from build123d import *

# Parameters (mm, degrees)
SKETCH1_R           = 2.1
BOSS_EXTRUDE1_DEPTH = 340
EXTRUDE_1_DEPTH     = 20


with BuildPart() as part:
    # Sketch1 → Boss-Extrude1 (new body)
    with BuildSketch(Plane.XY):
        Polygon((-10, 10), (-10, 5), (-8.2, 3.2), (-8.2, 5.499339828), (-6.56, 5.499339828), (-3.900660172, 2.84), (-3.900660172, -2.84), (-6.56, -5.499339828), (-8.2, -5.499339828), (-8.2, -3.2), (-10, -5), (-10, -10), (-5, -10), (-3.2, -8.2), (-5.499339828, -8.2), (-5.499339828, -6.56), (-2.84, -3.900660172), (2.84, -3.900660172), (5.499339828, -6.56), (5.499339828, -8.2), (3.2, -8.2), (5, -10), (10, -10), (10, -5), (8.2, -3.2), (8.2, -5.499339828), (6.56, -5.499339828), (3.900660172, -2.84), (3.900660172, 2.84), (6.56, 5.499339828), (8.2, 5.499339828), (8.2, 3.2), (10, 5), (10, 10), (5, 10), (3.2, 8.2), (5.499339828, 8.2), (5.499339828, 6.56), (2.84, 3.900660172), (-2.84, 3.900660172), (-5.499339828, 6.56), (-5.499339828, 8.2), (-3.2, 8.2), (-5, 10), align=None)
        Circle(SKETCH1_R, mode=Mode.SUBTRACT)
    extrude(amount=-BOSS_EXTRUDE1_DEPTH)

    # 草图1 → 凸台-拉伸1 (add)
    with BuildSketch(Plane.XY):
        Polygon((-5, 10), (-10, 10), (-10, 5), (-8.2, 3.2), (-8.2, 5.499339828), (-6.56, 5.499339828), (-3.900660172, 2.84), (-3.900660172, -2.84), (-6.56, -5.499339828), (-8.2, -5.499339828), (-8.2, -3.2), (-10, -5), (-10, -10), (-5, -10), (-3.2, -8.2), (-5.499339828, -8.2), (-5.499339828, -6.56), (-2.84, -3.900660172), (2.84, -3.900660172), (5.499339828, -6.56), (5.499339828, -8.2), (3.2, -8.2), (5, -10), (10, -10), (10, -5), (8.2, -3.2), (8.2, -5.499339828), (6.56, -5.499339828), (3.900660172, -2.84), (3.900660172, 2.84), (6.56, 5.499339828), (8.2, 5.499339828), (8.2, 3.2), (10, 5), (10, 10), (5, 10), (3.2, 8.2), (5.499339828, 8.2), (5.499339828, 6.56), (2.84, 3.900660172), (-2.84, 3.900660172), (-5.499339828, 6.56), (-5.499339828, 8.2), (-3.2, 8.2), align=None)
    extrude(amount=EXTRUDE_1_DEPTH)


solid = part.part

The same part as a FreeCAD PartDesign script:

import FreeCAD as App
import Part
import Sketcher
from FreeCAD import Vector

doc = App.newDocument("Part")
body = doc.addObject("PartDesign::Body", "Body")

# Sketch on XY plane
sketch1 = body.newObject("Sketcher::SketchObject", "Sketch")
sketch1.AttachmentSupport = (doc.getObject("XY_Plane"), [""])
sketch1.MapMode = "FlatFace"
sketch1.addGeometry([
    Part.LineSegment(Vector(-10, 10, 0), Vector(-10, 5, 0)),  # 0
    Part.LineSegment(Vector(-10, 5, 0), Vector(-8.2, 3.2, 0)),  # 1
    Part.LineSegment(Vector(-8.2, 3.2, 0), Vector(-8.2, 5.5, 0)),  # 2
    Part.LineSegment(Vector(-8.2, 5.5, 0), Vector(-6.6, 5.5, 0)),  # 3
    Part.LineSegment(Vector(-6.6, 5.5, 0), Vector(-3.9, 2.8, 0)),  # 4
    Part.LineSegment(Vector(-3.9, 2.8, 0), Vector(-3.9, -2.8, 0)),  # 5
    Part.LineSegment(Vector(-3.9, -2.8, 0), Vector(-6.6, -5.5, 0)),  # 6
    Part.LineSegment(Vector(-6.6, -5.5, 0), Vector(-8.2, -5.5, 0)),  # 7
    Part.LineSegment(Vector(-8.2, -5.5, 0), Vector(-8.2, -3.2, 0)),  # 8
    Part.LineSegment(Vector(-8.2, -3.2, 0), Vector(-10, -5, 0)),  # 9
    Part.LineSegment(Vector(-10, -5, 0), Vector(-10, -10, 0)),  # 10
    Part.LineSegment(Vector(-10, -10, 0), Vector(-5, -10, 0)),  # 11
    Part.LineSegment(Vector(-5, -10, 0), Vector(-3.2, -8.2, 0)),  # 12
    Part.LineSegment(Vector(-3.2, -8.2, 0), Vector(-5.5, -8.2, 0)),  # 13
    Part.LineSegment(Vector(-5.5, -8.2, 0), Vector(-5.5, -6.6, 0)),  # 14
    Part.LineSegment(Vector(-5.5, -6.6, 0), Vector(-2.8, -3.9, 0)),  # 15
    Part.LineSegment(Vector(-2.8, -3.9, 0), Vector(2.8, -3.9, 0)),  # 16
    Part.LineSegment(Vector(2.8, -3.9, 0), Vector(5.5, -6.6, 0)),  # 17
    Part.LineSegment(Vector(5.5, -6.6, 0), Vector(5.5, -8.2, 0)),  # 18
    Part.LineSegment(Vector(5.5, -8.2, 0), Vector(3.2, -8.2, 0)),  # 19
    Part.LineSegment(Vector(3.2, -8.2, 0), Vector(5, -10, 0)),  # 20
    Part.LineSegment(Vector(5, -10, 0), Vector(10, -10, 0)),  # 21
    Part.LineSegment(Vector(10, -10, 0), Vector(10, -5, 0)),  # 22
    Part.LineSegment(Vector(10, -5, 0), Vector(8.2, -3.2, 0)),  # 23
    Part.LineSegment(Vector(8.2, -3.2, 0), Vector(8.2, -5.5, 0)),  # 24
    Part.LineSegment(Vector(8.2, -5.5, 0), Vector(6.6, -5.5, 0)),  # 25
    Part.LineSegment(Vector(6.6, -5.5, 0), Vector(3.9, -2.8, 0)),  # 26
    Part.LineSegment(Vector(3.9, -2.8, 0), Vector(3.9, 2.8, 0)),  # 27
    Part.LineSegment(Vector(3.9, 2.8, 0), Vector(6.6, 5.5, 0)),  # 28
    Part.LineSegment(Vector(6.6, 5.5, 0), Vector(8.2, 5.5, 0)),  # 29
    Part.LineSegment(Vector(8.2, 5.5, 0), Vector(8.2, 3.2, 0)),  # 30
    Part.LineSegment(Vector(8.2, 3.2, 0), Vector(10, 5, 0)),  # 31
    Part.LineSegment(Vector(10, 5, 0), Vector(10, 10, 0)),  # 32
    Part.LineSegment(Vector(10, 10, 0), Vector(5, 10, 0)),  # 33
    Part.LineSegment(Vector(5, 10, 0), Vector(3.2, 8.2, 0)),  # 34
    Part.LineSegment(Vector(3.2, 8.2, 0), Vector(5.5, 8.2, 0)),  # 35
    Part.LineSegment(Vector(5.5, 8.2, 0), Vector(5.5, 6.6, 0)),  # 36
    Part.LineSegment(Vector(5.5, 6.6, 0), Vector(2.8, 3.9, 0)),  # 37
    Part.LineSegment(Vector(2.8, 3.9, 0), Vector(-2.8, 3.9, 0)),  # 38
    Part.LineSegment(Vector(-2.8, 3.9, 0), Vector(-5.5, 6.6, 0)),  # 39
    Part.LineSegment(Vector(-5.5, 6.6, 0), Vector(-5.5, 8.2, 0)),  # 40
    Part.LineSegment(Vector(-5.5, 8.2, 0), Vector(-3.2, 8.2, 0)),  # 41
    Part.LineSegment(Vector(-3.2, 8.2, 0), Vector(-5, 10, 0)),  # 42
    Part.LineSegment(Vector(-5, 10, 0), Vector(-10, 10, 0)),  # 43
    Part.Circle(Vector(0, 0, 0), Vector(0, 0, 1), 2.1),  # 44
], False)
sketch1.addConstraint([
    Sketcher.Constraint("Coincident", 0, 2, 1, 1),
    Sketcher.Constraint("Coincident", 1, 2, 2, 1),
    Sketcher.Constraint("Coincident", 2, 2, 3, 1),
    Sketcher.Constraint("Coincident", 3, 2, 4, 1),
    Sketcher.Constraint("Coincident", 4, 2, 5, 1),
    Sketcher.Constraint("Coincident", 5, 2, 6, 1),
    Sketcher.Constraint("Coincident", 6, 2, 7, 1),
    Sketcher.Constraint("Coincident", 7, 2, 8, 1),
    Sketcher.Constraint("Coincident", 8, 2, 9, 1),
    Sketcher.Constraint("Coincident", 9, 2, 10, 1),
    Sketcher.Constraint("Coincident", 10, 2, 11, 1),
    Sketcher.Constraint("Coincident", 11, 2, 12, 1),
    Sketcher.Constraint("Coincident", 12, 2, 13, 1),
    Sketcher.Constraint("Coincident", 13, 2, 14, 1),
    Sketcher.Constraint("Coincident", 14, 2, 15, 1),
    Sketcher.Constraint("Coincident", 15, 2, 16, 1),
    Sketcher.Constraint("Coincident", 16, 2, 17, 1),
    Sketcher.Constraint("Coincident", 17, 2, 18, 1),
    Sketcher.Constraint("Coincident", 18, 2, 19, 1),
    Sketcher.Constraint("Coincident", 19, 2, 20, 1),
    Sketcher.Constraint("Coincident", 20, 2, 21, 1),
    Sketcher.Constraint("Coincident", 21, 2, 22, 1),
    Sketcher.Constraint("Coincident", 22, 2, 23, 1),
    Sketcher.Constraint("Coincident", 23, 2, 24, 1),
    Sketcher.Constraint("Coincident", 24, 2, 25, 1),
    Sketcher.Constraint("Coincident", 25, 2, 26, 1),
    Sketcher.Constraint("Coincident", 26, 2, 27, 1),
    Sketcher.Constraint("Coincident", 27, 2, 28, 1),
    Sketcher.Constraint("Coincident", 28, 2, 29, 1),
    Sketcher.Constraint("Coincident", 29, 2, 30, 1),
    Sketcher.Constraint("Coincident", 30, 2, 31, 1),
    Sketcher.Constraint("Coincident", 31, 2, 32, 1),
    Sketcher.Constraint("Coincident", 32, 2, 33, 1),
    Sketcher.Constraint("Coincident", 33, 2, 34, 1),
    Sketcher.Constraint("Coincident", 34, 2, 35, 1),
    Sketcher.Constraint("Coincident", 35, 2, 36, 1),
    Sketcher.Constraint("Coincident", 36, 2, 37, 1),
    Sketcher.Constraint("Coincident", 37, 2, 38, 1),
    Sketcher.Constraint("Coincident", 38, 2, 39, 1),
    Sketcher.Constraint("Coincident", 39, 2, 40, 1),
    Sketcher.Constraint("Coincident", 40, 2, 41, 1),
    Sketcher.Constraint("Coincident", 41, 2, 42, 1),
    Sketcher.Constraint("Coincident", 42, 2, 43, 1),
    Sketcher.Constraint("Coincident", 43, 2, 0, 1),
    Sketcher.Constraint("Vertical", 0),
    Sketcher.Constraint("Vertical", 2),
    Sketcher.Constraint("Horizontal", 3),
    Sketcher.Constraint("Vertical", 5),
    Sketcher.Constraint("Horizontal", 7),
    Sketcher.Constraint("Vertical", 8),
    Sketcher.Constraint("Vertical", 10),
    Sketcher.Constraint("Horizontal", 11),
    Sketcher.Constraint("Horizontal", 13),
    Sketcher.Constraint("Vertical", 14),
    Sketcher.Constraint("Horizontal", 16),
    Sketcher.Constraint("Vertical", 18),
    Sketcher.Constraint("Horizontal", 19),
    Sketcher.Constraint("Horizontal", 21),
    Sketcher.Constraint("Vertical", 22),
    Sketcher.Constraint("Vertical", 24),
    Sketcher.Constraint("Horizontal", 25),
    Sketcher.Constraint("Vertical", 27),
    Sketcher.Constraint("Horizontal", 29),
    Sketcher.Constraint("Vertical", 30),
    Sketcher.Constraint("Vertical", 32),
    Sketcher.Constraint("Horizontal", 33),
    Sketcher.Constraint("Horizontal", 35),
    Sketcher.Constraint("Vertical", 36),
    Sketcher.Constraint("Horizontal", 38),
    Sketcher.Constraint("Vertical", 40),
    Sketcher.Constraint("Horizontal", 41),
    Sketcher.Constraint("Horizontal", 43),
    Sketcher.Constraint("Coincident", 44, 3, -1, 1),
    Sketcher.Constraint("Symmetric", 0, 2, 22, 2, -1, 1),
    Sketcher.Constraint("Symmetric", 1, 2, 23, 2, -1, 1),
    Sketcher.Constraint("Symmetric", 3, 2, 25, 2, -1, 1),
    Sketcher.Constraint("Symmetric", 4, 2, 26, 2, -1, 1),
    Sketcher.Constraint("Symmetric", 6, 2, 28, 2, -1, 1),
    Sketcher.Constraint("Symmetric", 8, 2, 30, 2, -1, 1),
    Sketcher.Constraint("Symmetric", 9, 2, 31, 2, -1, 1),
    Sketcher.Constraint("Symmetric", 11, 2, 33, 2, -1, 1),
    Sketcher.Constraint("Symmetric", 12, 2, 34, 2, -1, 1),
    Sketcher.Constraint("Symmetric", 14, 2, 36, 2, -1, 1),
    Sketcher.Constraint("Symmetric", 15, 2, 37, 2, -1, 1),
    Sketcher.Constraint("Symmetric", 17, 2, 39, 2, -1, 1),
    Sketcher.Constraint("Symmetric", 19, 2, 41, 2, -1, 1),
    Sketcher.Constraint("Symmetric", 20, 2, 42, 2, -1, 1),
    Sketcher.Constraint("Symmetric", 14, 2, 17, 2, -2),
    Sketcher.Constraint("Symmetric", 12, 2, 19, 2, -2),
    Sketcher.Constraint("Symmetric", 11, 2, 20, 2, -2),
    Sketcher.Constraint("Symmetric", 9, 2, 22, 2, -2),
    Sketcher.Constraint("Symmetric", 8, 2, 23, 2, -2),
    Sketcher.Constraint("Symmetric", 6, 2, 25, 2, -2),
    Sketcher.Constraint("Parallel", 1, 4),
    Sketcher.Constraint("Perpendicular", 4, 6),
    Sketcher.Constraint("Parallel", 6, 9),
    Sketcher.Constraint("Parallel", 9, 12),
    Sketcher.Constraint("Parallel", 12, 15),
    Sketcher.Constraint("Perpendicular", 15, 17),
    Sketcher.Constraint("Perpendicular", 26, 28),
    Sketcher.Constraint("Perpendicular", 37, 39),
    Sketcher.Constraint("Equal", 43, 0),
    Sketcher.Constraint("Equal", 41, 2),
    Sketcher.Constraint("Equal", 38, 5),
    Sketcher.Constraint("Equal", 29, 14),
    Sketcher.Constraint("Equal", 9, 12),
    Sketcher.Constraint("Equal", 6, 15),
    Sketcher.Constraint("Diameter", 44, 4.2),
    Sketcher.Constraint("DistanceX", 11, 1, 11, 2, 5.0),
    Sketcher.Constraint("DistanceX", 0, 2, -1, 1, 10.0),
    Sketcher.Constraint("DistanceX", 3, 1, 3, 2, 1.64),
    Sketcher.Constraint("DistanceX", 16, 1, 16, 2, 5.68),
    Sketcher.Constraint("DistanceX", 1, 2, -1, 1, 8.2),
    Sketcher.Constraint("DistanceX", 13, 2, 13, 1, 2.29934),
])
pad1 = body.newObject("PartDesign::Pad", "Pad")
pad1.Profile = sketch1
pad1.Length = 340
pad1.Reversed = True

# Sketch on XY plane
sketch2 = body.newObject("Sketcher::SketchObject", "Sketch001")
sketch2.AttachmentSupport = (doc.getObject("XY_Plane"), [""])
sketch2.MapMode = "FlatFace"
sketch2.addGeometry([
    Part.LineSegment(Vector(-5, 10, 0), Vector(-10, 10, 0)),  # 0
    Part.LineSegment(Vector(-10, 10, 0), Vector(-10, 5, 0)),  # 1
    Part.LineSegment(Vector(-10, 5, 0), Vector(-8.2, 3.2, 0)),  # 2
    Part.LineSegment(Vector(-8.2, 3.2, 0), Vector(-8.2, 5.5, 0)),  # 3
    Part.LineSegment(Vector(-8.2, 5.5, 0), Vector(-6.6, 5.5, 0)),  # 4
    Part.LineSegment(Vector(-6.6, 5.5, 0), Vector(-3.9, 2.8, 0)),  # 5
    Part.LineSegment(Vector(-3.9, 2.8, 0), Vector(-3.9, -2.8, 0)),  # 6
    Part.LineSegment(Vector(-3.9, -2.8, 0), Vector(-6.6, -5.5, 0)),  # 7
    Part.LineSegment(Vector(-6.6, -5.5, 0), Vector(-8.2, -5.5, 0)),  # 8
    Part.LineSegment(Vector(-8.2, -5.5, 0), Vector(-8.2, -3.2, 0)),  # 9
    Part.LineSegment(Vector(-8.2, -3.2, 0), Vector(-10, -5, 0)),  # 10
    Part.LineSegment(Vector(-10, -5, 0), Vector(-10, -10, 0)),  # 11
    Part.LineSegment(Vector(-10, -10, 0), Vector(-5, -10, 0)),  # 12
    Part.LineSegment(Vector(-5, -10, 0), Vector(-3.2, -8.2, 0)),  # 13
    Part.LineSegment(Vector(-3.2, -8.2, 0), Vector(-5.5, -8.2, 0)),  # 14
    Part.LineSegment(Vector(-5.5, -8.2, 0), Vector(-5.5, -6.6, 0)),  # 15
    Part.LineSegment(Vector(-5.5, -6.6, 0), Vector(-2.8, -3.9, 0)),  # 16
    Part.LineSegment(Vector(-2.8, -3.9, 0), Vector(2.8, -3.9, 0)),  # 17
    Part.LineSegment(Vector(2.8, -3.9, 0), Vector(5.5, -6.6, 0)),  # 18
    Part.LineSegment(Vector(5.5, -6.6, 0), Vector(5.5, -8.2, 0)),  # 19
    Part.LineSegment(Vector(5.5, -8.2, 0), Vector(3.2, -8.2, 0)),  # 20
    Part.LineSegment(Vector(3.2, -8.2, 0), Vector(5, -10, 0)),  # 21
    Part.LineSegment(Vector(5, -10, 0), Vector(10, -10, 0)),  # 22
    Part.LineSegment(Vector(10, -10, 0), Vector(10, -5, 0)),  # 23
    Part.LineSegment(Vector(10, -5, 0), Vector(8.2, -3.2, 0)),  # 24
    Part.LineSegment(Vector(8.2, -3.2, 0), Vector(8.2, -5.5, 0)),  # 25
    Part.LineSegment(Vector(8.2, -5.5, 0), Vector(6.6, -5.5, 0)),  # 26
    Part.LineSegment(Vector(6.6, -5.5, 0), Vector(3.9, -2.8, 0)),  # 27
    Part.LineSegment(Vector(3.9, -2.8, 0), Vector(3.9, 2.8, 0)),  # 28
    Part.LineSegment(Vector(3.9, 2.8, 0), Vector(6.6, 5.5, 0)),  # 29
    Part.LineSegment(Vector(6.6, 5.5, 0), Vector(8.2, 5.5, 0)),  # 30
    Part.LineSegment(Vector(8.2, 5.5, 0), Vector(8.2, 3.2, 0)),  # 31
    Part.LineSegment(Vector(8.2, 3.2, 0), Vector(10, 5, 0)),  # 32
    Part.LineSegment(Vector(10, 5, 0), Vector(10, 10, 0)),  # 33
    Part.LineSegment(Vector(10, 10, 0), Vector(5, 10, 0)),  # 34
    Part.LineSegment(Vector(5, 10, 0), Vector(3.2, 8.2, 0)),  # 35
    Part.LineSegment(Vector(3.2, 8.2, 0), Vector(5.5, 8.2, 0)),  # 36
    Part.LineSegment(Vector(5.5, 8.2, 0), Vector(5.5, 6.6, 0)),  # 37
    Part.LineSegment(Vector(5.5, 6.6, 0), Vector(2.8, 3.9, 0)),  # 38
    Part.LineSegment(Vector(2.8, 3.9, 0), Vector(-2.8, 3.9, 0)),  # 39
    Part.LineSegment(Vector(-2.8, 3.9, 0), Vector(-5.5, 6.6, 0)),  # 40
    Part.LineSegment(Vector(-5.5, 6.6, 0), Vector(-5.5, 8.2, 0)),  # 41
    Part.LineSegment(Vector(-5.5, 8.2, 0), Vector(-3.2, 8.2, 0)),  # 42
    Part.LineSegment(Vector(-3.2, 8.2, 0), Vector(-5, 10, 0)),  # 43
], False)
sketch2.addConstraint([
    Sketcher.Constraint("Coincident", 0, 2, 1, 1),
    Sketcher.Constraint("Coincident", 1, 2, 2, 1),
    Sketcher.Constraint("Coincident", 2, 2, 3, 1),
    Sketcher.Constraint("Coincident", 3, 2, 4, 1),
    Sketcher.Constraint("Coincident", 4, 2, 5, 1),
    Sketcher.Constraint("Coincident", 5, 2, 6, 1),
    Sketcher.Constraint("Coincident", 6, 2, 7, 1),
    Sketcher.Constraint("Coincident", 7, 2, 8, 1),
    Sketcher.Constraint("Coincident", 8, 2, 9, 1),
    Sketcher.Constraint("Coincident", 9, 2, 10, 1),
    Sketcher.Constraint("Coincident", 10, 2, 11, 1),
    Sketcher.Constraint("Coincident", 11, 2, 12, 1),
    Sketcher.Constraint("Coincident", 12, 2, 13, 1),
    Sketcher.Constraint("Coincident", 13, 2, 14, 1),
    Sketcher.Constraint("Coincident", 14, 2, 15, 1),
    Sketcher.Constraint("Coincident", 15, 2, 16, 1),
    Sketcher.Constraint("Coincident", 16, 2, 17, 1),
    Sketcher.Constraint("Coincident", 17, 2, 18, 1),
    Sketcher.Constraint("Coincident", 18, 2, 19, 1),
    Sketcher.Constraint("Coincident", 19, 2, 20, 1),
    Sketcher.Constraint("Coincident", 20, 2, 21, 1),
    Sketcher.Constraint("Coincident", 21, 2, 22, 1),
    Sketcher.Constraint("Coincident", 22, 2, 23, 1),
    Sketcher.Constraint("Coincident", 23, 2, 24, 1),
    Sketcher.Constraint("Coincident", 24, 2, 25, 1),
    Sketcher.Constraint("Coincident", 25, 2, 26, 1),
    Sketcher.Constraint("Coincident", 26, 2, 27, 1),
    Sketcher.Constraint("Coincident", 27, 2, 28, 1),
    Sketcher.Constraint("Coincident", 28, 2, 29, 1),
    Sketcher.Constraint("Coincident", 29, 2, 30, 1),
    Sketcher.Constraint("Coincident", 30, 2, 31, 1),
    Sketcher.Constraint("Coincident", 31, 2, 32, 1),
    Sketcher.Constraint("Coincident", 32, 2, 33, 1),
    Sketcher.Constraint("Coincident", 33, 2, 34, 1),
    Sketcher.Constraint("Coincident", 34, 2, 35, 1),
    Sketcher.Constraint("Coincident", 35, 2, 36, 1),
    Sketcher.Constraint("Coincident", 36, 2, 37, 1),
    Sketcher.Constraint("Coincident", 37, 2, 38, 1),
    Sketcher.Constraint("Coincident", 38, 2, 39, 1),
    Sketcher.Constraint("Coincident", 39, 2, 40, 1),
    Sketcher.Constraint("Coincident", 40, 2, 41, 1),
    Sketcher.Constraint("Coincident", 41, 2, 42, 1),
    Sketcher.Constraint("Coincident", 42, 2, 43, 1),
    Sketcher.Constraint("Coincident", 43, 2, 0, 1),
    Sketcher.Constraint("Horizontal", 0),
    Sketcher.Constraint("Vertical", 1),
    Sketcher.Constraint("Vertical", 3),
    Sketcher.Constraint("Horizontal", 4),
    Sketcher.Constraint("Vertical", 6),
    Sketcher.Constraint("Horizontal", 8),
    Sketcher.Constraint("Vertical", 9),
    Sketcher.Constraint("Vertical", 11),
    Sketcher.Constraint("Horizontal", 12),
    Sketcher.Constraint("Horizontal", 14),
    Sketcher.Constraint("Vertical", 15),
    Sketcher.Constraint("Horizontal", 17),
    Sketcher.Constraint("Vertical", 19),
    Sketcher.Constraint("Horizontal", 20),
    Sketcher.Constraint("Horizontal", 22),
    Sketcher.Constraint("Vertical", 23),
    Sketcher.Constraint("Vertical", 25),
    Sketcher.Constraint("Horizontal", 26),
    Sketcher.Constraint("Vertical", 28),
    Sketcher.Constraint("Horizontal", 30),
    Sketcher.Constraint("Vertical", 31),
    Sketcher.Constraint("Vertical", 33),
    Sketcher.Constraint("Horizontal", 34),
    Sketcher.Constraint("Horizontal", 36),
    Sketcher.Constraint("Vertical", 37),
    Sketcher.Constraint("Horizontal", 39),
    Sketcher.Constraint("Vertical", 41),
    Sketcher.Constraint("Horizontal", 42),
    Sketcher.Constraint("Symmetric", 0, 2, 22, 2, -1, 1),
    Sketcher.Constraint("Symmetric", 2, 2, 24, 2, -1, 1),
    Sketcher.Constraint("Symmetric", 4, 2, 26, 2, -1, 1),
    Sketcher.Constraint("Symmetric", 5, 2, 27, 2, -1, 1),
    Sketcher.Constraint("Symmetric", 7, 2, 29, 2, -1, 1),
    Sketcher.Constraint("Symmetric", 9, 2, 31, 2, -1, 1),
    Sketcher.Constraint("Symmetric", 10, 2, 32, 2, -1, 1),
    Sketcher.Constraint("Symmetric", 12, 2, 34, 2, -1, 1),
    Sketcher.Constraint("Symmetric", 13, 2, 35, 2, -1, 1),
    Sketcher.Constraint("Symmetric", 15, 2, 37, 2, -1, 1),
    Sketcher.Constraint("Symmetric", 16, 2, 38, 2, -1, 1),
    Sketcher.Constraint("Symmetric", 18, 2, 40, 2, -1, 1),
    Sketcher.Constraint("Symmetric", 20, 2, 42, 2, -1, 1),
    Sketcher.Constraint("Symmetric", 15, 2, 18, 2, -2),
    Sketcher.Constraint("Symmetric", 13, 2, 20, 2, -2),
    Sketcher.Constraint("Symmetric", 12, 2, 21, 2, -2),
    Sketcher.Constraint("Symmetric", 10, 2, 23, 2, -2),
    Sketcher.Constraint("Symmetric", 9, 2, 24, 2, -2),
    Sketcher.Constraint("Symmetric", 7, 2, 26, 2, -2),
    Sketcher.Constraint("Parallel", 2, 5),
    Sketcher.Constraint("Perpendicular", 5, 7),
    Sketcher.Constraint("Parallel", 7, 10),
    Sketcher.Constraint("Parallel", 10, 13),
    Sketcher.Constraint("Parallel", 13, 16),
    Sketcher.Constraint("Perpendicular", 16, 18),
    Sketcher.Constraint("Parallel", 18, 21),
    Sketcher.Constraint("Perpendicular", 27, 29),
    Sketcher.Constraint("Perpendicular", 38, 40),
    Sketcher.Constraint("Parallel", 40, 43),
    Sketcher.Constraint("Equal", 34, 1),
    Sketcher.Constraint("Equal", 42, 3),
    Sketcher.Constraint("Equal", 39, 6),
    Sketcher.Constraint("Equal", 30, 15),
    Sketcher.Constraint("Equal", 10, 13),
    Sketcher.Constraint("Equal", 7, 16),
    Sketcher.Constraint("DistanceX", 0, 2, 0, 1, 5.0),
    Sketcher.Constraint("DistanceX", 0, 2, -1, 1, 10.0),
    Sketcher.Constraint("DistanceX", 4, 1, 4, 2, 1.64),
    Sketcher.Constraint("DistanceX", 17, 1, 17, 2, 5.68),
    Sketcher.Constraint("DistanceX", 2, 2, -1, 1, 8.2),
    Sketcher.Constraint("DistanceX", 14, 2, 14, 1, 2.29934),
])
pad2 = body.newObject("PartDesign::Pad", "Pad001")
pad2.Profile = sketch2
pad2.Length = 20

doc.recompute()
